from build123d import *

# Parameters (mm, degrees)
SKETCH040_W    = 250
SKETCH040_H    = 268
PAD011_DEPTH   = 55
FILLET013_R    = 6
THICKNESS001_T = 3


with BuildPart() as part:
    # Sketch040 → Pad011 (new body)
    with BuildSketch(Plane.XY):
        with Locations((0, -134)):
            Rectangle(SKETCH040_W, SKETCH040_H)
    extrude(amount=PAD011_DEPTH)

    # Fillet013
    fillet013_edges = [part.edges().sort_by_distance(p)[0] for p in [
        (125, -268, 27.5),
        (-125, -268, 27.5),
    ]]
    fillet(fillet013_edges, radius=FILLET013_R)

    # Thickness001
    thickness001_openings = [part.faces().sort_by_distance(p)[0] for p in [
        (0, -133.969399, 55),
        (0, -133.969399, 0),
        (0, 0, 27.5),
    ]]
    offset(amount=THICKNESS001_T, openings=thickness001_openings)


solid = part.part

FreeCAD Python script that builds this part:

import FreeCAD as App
import Part
import Sketcher
from FreeCAD import Vector


def edges_at(feature, points):
    """Names of the edges that pass closest to the given points."""
    edges = feature.Shape.Edges
    near = lambda p: min(range(len(edges)), key=lambda i: edges[i].distToShape(Part.Vertex(*p))[0])
    return sorted({f"Edge{near(p) + 1}" for p in points})


def faces_at(feature, points):
    """Names of the faces that lie closest to the given points."""
    faces = feature.Shape.Faces
    near = lambda p: min(range(len(faces)), key=lambda i: faces[i].distToShape(Part.Vertex(*p))[0])
    return sorted({f"Face{near(p) + 1}" for p in points})


def add_polygon(sketch, points):
    """Adds a closed chain of lines whose ends are joined by coincident constraints."""
    first, n = sketch.GeometryCount, len(points)
    for a, b in zip(points, points[1:] + points[:1]):
        sketch.addGeometry(Part.LineSegment(App.Vector(*a, 0), App.Vector(*b, 0)), False)
    for i in range(n):
        sketch.addConstraint(Sketcher.Constraint("Coincident", first + i, 2, first + (i + 1) % n, 1))

doc = App.newDocument("Part")
body = doc.addObject("PartDesign::Body", "Body")

# Sketch on XY plane
sketch1 = body.newObject("Sketcher::SketchObject", "Sketch")
sketch1.AttachmentSupport = (doc.getObject("XY_Plane"), [""])
sketch1.MapMode = "FlatFace"
add_polygon(sketch1, [(-125, 0), (-125, -268), (125, -268), (125, 0)])  # lines 0-3
sketch1.addConstraint([
    Sketcher.Constraint("Vertical", 0),
    Sketcher.Constraint("Horizontal", 1),
    Sketcher.Constraint("Vertical", 2),
    Sketcher.Constraint("Horizontal", 3),
    Sketcher.Constraint("Symmetric", 2, 2, 3, 2, -1, 1),
    Sketcher.Constraint("DistanceX", 1, 1, 1, 2, 250.0),
    Sketcher.Constraint("DistanceY", 0, 2, 0, 1, 268.0),
])
pad1 = body.newObject("PartDesign::Pad", "Pad")
pad1.Profile = sketch1
pad1.Length = 55
doc.recompute()

fillet = body.newObject("PartDesign::Fillet", "Fillet")
fillet.Base = (pad1, edges_at(pad1, [(125, -268, 27.5), (-125, -268, 27.5)]))
fillet.Radius = 6
doc.recompute()

thickness = body.newObject("PartDesign::Thickness", "Thickness")
thickness.Base = (fillet, faces_at(fillet, [(0, -134, 55), (0, -134, 0), (0, 0, 27.5)]))
thickness.Value = 3
thickness.Reversed = False
thickness.Join = "Arc"

doc.recompute()
